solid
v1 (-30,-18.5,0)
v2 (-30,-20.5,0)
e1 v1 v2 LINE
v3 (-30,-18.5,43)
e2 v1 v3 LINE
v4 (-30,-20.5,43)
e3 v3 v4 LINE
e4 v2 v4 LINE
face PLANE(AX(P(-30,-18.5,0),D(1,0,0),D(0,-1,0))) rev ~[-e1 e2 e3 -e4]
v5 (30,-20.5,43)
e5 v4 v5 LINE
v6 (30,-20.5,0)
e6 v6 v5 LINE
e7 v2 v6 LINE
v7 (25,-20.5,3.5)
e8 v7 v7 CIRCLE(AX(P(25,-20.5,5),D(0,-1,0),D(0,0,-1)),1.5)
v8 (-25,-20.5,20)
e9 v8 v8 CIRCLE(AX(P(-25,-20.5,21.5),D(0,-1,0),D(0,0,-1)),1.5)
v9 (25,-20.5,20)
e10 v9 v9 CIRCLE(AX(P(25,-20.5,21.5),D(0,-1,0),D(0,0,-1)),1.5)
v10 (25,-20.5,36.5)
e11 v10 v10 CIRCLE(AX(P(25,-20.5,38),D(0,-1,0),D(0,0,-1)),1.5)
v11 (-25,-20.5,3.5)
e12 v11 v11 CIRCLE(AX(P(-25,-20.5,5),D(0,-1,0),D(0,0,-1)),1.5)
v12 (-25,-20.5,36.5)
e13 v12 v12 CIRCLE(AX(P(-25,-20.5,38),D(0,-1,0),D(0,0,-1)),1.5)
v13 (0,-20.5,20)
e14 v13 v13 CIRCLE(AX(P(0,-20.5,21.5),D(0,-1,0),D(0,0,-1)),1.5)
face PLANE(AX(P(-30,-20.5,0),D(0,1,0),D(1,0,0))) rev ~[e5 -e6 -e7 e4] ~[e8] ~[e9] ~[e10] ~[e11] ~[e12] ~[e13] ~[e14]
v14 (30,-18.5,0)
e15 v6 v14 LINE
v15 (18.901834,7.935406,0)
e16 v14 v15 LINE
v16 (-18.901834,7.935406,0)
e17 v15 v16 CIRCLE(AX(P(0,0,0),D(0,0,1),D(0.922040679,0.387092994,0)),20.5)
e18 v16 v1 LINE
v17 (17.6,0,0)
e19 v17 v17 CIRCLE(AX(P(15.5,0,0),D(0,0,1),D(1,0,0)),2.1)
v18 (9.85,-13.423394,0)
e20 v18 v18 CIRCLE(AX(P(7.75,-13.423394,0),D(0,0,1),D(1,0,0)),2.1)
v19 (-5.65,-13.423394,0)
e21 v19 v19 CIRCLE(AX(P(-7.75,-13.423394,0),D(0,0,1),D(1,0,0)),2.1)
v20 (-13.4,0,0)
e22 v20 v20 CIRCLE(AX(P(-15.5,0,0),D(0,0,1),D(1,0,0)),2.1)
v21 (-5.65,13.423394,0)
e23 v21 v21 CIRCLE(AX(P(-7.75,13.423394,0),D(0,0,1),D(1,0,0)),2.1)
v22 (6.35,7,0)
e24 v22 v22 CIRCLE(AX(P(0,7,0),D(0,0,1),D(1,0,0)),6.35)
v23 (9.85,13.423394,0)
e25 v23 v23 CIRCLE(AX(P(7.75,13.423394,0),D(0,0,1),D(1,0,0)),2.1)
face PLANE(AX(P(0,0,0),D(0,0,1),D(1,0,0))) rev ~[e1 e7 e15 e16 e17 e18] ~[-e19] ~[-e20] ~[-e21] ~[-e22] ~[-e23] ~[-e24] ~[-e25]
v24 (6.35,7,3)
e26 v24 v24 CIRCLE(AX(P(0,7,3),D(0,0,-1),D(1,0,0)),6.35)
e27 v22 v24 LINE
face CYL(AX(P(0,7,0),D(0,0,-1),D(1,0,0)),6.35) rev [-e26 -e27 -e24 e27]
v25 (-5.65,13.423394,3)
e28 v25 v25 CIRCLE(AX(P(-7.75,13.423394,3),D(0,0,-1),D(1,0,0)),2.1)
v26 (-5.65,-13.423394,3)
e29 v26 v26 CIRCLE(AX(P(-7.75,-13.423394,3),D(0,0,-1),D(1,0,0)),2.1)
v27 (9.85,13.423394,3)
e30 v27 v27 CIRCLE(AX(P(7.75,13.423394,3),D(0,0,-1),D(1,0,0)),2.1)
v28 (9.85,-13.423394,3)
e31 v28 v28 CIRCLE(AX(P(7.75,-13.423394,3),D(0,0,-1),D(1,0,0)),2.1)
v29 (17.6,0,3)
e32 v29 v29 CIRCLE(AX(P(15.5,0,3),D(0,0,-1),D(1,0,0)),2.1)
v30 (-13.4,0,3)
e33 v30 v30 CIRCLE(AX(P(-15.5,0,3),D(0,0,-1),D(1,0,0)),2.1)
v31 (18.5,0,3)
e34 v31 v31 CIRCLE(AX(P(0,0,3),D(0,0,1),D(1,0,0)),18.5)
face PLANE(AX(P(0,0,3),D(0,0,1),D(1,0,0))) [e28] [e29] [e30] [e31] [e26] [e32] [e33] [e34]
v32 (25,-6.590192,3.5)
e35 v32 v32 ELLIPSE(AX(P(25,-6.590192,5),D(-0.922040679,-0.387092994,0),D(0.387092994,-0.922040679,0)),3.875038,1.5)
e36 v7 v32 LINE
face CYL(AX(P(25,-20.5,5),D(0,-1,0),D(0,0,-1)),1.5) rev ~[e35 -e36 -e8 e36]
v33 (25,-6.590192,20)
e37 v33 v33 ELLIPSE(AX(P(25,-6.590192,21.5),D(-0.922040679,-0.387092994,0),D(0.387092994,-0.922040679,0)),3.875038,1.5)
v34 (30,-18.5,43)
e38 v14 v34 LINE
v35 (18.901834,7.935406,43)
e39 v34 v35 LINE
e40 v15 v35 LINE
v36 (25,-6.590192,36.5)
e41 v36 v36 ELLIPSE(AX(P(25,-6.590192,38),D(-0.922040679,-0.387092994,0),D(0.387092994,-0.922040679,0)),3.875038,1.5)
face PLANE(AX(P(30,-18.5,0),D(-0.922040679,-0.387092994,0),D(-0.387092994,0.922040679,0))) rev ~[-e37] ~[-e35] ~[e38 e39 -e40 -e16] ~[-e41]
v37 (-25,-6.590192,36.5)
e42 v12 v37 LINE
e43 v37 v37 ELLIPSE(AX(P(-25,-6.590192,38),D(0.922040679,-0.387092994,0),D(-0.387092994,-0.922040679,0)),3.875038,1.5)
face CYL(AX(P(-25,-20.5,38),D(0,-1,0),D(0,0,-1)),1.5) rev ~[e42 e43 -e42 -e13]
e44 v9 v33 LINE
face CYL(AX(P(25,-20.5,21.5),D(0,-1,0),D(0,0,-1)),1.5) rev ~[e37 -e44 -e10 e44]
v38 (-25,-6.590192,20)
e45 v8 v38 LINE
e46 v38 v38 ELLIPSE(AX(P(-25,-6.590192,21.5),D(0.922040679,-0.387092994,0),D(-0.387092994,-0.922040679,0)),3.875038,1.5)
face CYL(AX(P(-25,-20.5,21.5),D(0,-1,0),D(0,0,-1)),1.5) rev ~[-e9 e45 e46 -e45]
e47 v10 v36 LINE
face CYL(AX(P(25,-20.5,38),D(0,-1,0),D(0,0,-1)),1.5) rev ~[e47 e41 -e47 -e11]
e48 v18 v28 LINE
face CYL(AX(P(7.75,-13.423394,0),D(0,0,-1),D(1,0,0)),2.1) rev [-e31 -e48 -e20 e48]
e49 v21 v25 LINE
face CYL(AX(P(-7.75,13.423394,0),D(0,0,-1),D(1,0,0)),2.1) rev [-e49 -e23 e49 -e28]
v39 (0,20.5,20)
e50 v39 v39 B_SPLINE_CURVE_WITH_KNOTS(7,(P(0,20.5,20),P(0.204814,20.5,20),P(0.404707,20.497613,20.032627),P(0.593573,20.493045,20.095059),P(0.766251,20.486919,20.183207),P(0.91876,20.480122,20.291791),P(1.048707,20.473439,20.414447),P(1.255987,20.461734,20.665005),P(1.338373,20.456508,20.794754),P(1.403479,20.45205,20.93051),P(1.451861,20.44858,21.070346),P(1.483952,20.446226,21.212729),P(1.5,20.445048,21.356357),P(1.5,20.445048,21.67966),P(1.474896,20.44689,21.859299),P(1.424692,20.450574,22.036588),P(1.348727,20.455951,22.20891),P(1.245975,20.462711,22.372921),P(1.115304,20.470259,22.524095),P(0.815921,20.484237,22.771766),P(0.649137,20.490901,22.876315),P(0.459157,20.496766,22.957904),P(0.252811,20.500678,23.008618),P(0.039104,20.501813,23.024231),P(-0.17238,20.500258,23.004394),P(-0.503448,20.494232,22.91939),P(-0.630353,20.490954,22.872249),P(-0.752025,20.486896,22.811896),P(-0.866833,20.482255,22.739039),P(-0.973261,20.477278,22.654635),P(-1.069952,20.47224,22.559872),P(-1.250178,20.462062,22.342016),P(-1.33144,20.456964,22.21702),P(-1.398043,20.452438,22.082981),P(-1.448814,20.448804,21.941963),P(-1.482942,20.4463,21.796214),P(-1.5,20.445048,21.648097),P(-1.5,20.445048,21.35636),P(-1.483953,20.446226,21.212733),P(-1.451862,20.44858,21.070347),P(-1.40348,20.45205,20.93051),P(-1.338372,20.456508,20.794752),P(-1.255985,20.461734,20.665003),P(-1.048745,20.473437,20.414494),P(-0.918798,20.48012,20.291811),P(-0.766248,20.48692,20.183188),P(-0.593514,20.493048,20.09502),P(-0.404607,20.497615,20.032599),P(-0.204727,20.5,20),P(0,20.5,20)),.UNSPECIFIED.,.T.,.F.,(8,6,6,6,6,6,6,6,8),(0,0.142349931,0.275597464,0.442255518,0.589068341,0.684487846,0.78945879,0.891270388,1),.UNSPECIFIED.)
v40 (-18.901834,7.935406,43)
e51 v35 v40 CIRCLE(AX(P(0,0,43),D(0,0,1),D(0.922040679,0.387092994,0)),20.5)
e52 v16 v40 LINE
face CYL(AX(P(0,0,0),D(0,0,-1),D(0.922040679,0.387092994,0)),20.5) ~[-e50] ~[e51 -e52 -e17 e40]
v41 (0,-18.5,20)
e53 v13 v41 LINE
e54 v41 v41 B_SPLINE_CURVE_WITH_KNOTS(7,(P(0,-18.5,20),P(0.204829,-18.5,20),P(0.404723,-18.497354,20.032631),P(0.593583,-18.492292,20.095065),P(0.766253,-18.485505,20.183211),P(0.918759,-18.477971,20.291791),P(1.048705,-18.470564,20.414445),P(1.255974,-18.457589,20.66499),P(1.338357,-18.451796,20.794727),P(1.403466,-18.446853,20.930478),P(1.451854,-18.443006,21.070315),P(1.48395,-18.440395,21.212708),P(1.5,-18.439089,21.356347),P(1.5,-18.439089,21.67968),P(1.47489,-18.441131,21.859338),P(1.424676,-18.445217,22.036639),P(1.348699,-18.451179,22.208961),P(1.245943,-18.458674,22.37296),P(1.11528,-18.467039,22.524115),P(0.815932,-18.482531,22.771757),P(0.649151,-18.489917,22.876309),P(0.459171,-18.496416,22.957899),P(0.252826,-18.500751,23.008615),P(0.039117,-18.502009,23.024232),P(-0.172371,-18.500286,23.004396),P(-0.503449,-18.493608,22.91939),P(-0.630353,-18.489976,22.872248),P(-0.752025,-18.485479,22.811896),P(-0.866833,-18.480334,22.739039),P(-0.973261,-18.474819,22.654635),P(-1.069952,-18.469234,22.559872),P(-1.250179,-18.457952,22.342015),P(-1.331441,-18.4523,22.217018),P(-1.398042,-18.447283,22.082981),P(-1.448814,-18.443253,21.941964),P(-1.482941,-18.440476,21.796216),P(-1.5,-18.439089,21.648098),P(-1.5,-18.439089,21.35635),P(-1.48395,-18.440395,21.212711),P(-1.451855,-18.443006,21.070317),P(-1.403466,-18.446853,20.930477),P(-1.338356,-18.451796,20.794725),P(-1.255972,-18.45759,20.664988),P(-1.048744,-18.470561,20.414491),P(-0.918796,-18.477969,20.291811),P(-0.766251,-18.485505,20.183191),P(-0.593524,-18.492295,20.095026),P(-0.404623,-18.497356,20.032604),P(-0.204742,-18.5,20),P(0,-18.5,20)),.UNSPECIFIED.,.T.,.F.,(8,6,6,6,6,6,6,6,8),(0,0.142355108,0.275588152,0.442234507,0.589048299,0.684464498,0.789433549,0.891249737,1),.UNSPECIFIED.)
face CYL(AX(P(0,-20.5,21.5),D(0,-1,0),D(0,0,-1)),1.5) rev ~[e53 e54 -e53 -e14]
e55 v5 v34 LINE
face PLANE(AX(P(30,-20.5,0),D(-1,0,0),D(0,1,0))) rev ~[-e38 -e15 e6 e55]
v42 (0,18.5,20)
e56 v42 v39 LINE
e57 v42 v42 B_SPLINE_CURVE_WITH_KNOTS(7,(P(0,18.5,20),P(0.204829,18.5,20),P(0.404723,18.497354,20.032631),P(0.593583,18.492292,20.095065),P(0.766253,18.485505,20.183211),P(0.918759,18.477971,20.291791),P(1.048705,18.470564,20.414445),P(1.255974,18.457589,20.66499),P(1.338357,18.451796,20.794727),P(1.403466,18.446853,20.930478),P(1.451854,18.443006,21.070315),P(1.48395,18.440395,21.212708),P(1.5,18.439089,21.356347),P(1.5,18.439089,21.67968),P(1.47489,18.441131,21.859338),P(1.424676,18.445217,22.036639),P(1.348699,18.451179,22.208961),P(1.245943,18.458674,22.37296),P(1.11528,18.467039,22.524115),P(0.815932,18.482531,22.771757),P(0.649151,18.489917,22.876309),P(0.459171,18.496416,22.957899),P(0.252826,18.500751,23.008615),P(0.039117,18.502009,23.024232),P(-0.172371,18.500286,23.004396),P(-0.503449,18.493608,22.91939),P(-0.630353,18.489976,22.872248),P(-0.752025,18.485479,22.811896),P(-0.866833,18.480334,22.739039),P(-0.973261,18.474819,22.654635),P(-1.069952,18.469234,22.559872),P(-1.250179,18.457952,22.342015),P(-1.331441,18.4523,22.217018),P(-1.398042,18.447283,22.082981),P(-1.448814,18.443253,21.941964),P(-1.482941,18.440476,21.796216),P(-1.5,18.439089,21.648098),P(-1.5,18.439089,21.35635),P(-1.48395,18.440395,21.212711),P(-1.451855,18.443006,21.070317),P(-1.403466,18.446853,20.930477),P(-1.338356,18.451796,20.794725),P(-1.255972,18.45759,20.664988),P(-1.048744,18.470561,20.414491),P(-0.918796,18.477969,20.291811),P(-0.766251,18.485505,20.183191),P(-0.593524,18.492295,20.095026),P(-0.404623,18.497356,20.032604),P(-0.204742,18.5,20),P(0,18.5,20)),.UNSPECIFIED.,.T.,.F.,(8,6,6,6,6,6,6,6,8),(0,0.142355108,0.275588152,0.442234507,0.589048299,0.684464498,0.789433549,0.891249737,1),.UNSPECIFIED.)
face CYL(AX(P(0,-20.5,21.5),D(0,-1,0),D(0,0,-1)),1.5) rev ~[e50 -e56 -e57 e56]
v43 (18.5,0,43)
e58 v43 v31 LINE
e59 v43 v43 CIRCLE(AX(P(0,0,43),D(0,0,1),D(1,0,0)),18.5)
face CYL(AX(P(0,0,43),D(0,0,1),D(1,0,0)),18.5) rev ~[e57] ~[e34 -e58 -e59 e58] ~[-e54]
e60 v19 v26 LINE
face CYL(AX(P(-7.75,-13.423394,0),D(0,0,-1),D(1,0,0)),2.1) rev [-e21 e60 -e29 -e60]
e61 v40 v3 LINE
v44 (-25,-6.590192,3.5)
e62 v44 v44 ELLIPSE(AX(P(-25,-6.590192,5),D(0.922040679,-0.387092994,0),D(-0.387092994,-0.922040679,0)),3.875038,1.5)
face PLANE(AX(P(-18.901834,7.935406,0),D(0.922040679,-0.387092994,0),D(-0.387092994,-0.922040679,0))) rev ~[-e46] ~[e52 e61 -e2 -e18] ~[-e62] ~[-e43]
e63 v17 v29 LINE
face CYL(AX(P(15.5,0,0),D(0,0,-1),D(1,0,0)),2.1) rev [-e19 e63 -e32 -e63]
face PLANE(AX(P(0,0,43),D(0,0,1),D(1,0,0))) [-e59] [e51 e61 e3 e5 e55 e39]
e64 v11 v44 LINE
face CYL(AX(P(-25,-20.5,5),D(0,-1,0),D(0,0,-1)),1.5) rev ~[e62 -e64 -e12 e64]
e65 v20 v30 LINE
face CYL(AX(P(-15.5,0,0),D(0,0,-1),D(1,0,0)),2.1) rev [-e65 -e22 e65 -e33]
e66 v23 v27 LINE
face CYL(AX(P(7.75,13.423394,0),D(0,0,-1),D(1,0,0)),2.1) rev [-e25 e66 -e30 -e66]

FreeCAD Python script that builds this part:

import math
import FreeCAD as App
import Part
import Sketcher
Q = App.Units.Quantity

doc = App.newDocument("Part")
body = doc.addObject("PartDesign::Body", "Body")

sketch1 = doc.addObject("Sketcher::SketchObject", "Sketch")
body.addObject(sketch1)
sketch1.AttachmentSupport = (doc.XY_Plane, [""])
sketch1.MapMode = "FlatFace"
sketch1.addGeometry(Part.LineSegment(App.Vector(30, -18.5, 0), App.Vector(18.9, 7.9, 0)), False)
sketch1.addGeometry(Part.ArcOfCircle(Part.Circle(App.Vector(0, 0, 0), App.Vector(0, 0, 1), 20.5), math.radians(23), math.radians(157)), False)
sketch1.addGeometry(Part.LineSegment(App.Vector(-18.9, 7.9, 0), App.Vector(-30, -18.5, 0)), False)
sketch1.addGeometry(Part.LineSegment(App.Vector(-30, -18.5, 0), App.Vector(-30, -20.5, 0)), False)
sketch1.addGeometry(Part.LineSegment(App.Vector(-30, -20.5, 0), App.Vector(30, -20.5, 0)), False)
sketch1.addGeometry(Part.LineSegment(App.Vector(30, -20.5, 0), App.Vector(30, -18.5, 0)), False)
sketch1.addGeometry(Part.Circle(App.Vector(7.8, 13.4, 0), App.Vector(0, 0, 1), 2.1), False)
sketch1.addGeometry(Part.Circle(App.Vector(-7.8, -13.4, 0), App.Vector(0, 0, 1), 2.1), False)
sketch1.addGeometry(Part.Circle(App.Vector(7.8, -13.4, 0), App.Vector(0, 0, 1), 2.1), False)
sketch1.addGeometry(Part.Circle(App.Vector(-15.5, 0, 0), App.Vector(0, 0, 1), 2.1), False)
sketch1.addGeometry(Part.Circle(App.Vector(0, 7, 0), App.Vector(0, 0, 1), 6.3), False)
sketch1.addGeometry(Part.Circle(App.Vector(-7.8, 13.4, 0), App.Vector(0, 0, 1), 2.1), False)
sketch1.addGeometry(Part.Circle(App.Vector(15.5, 0, 0), App.Vector(0, 0, 1), 2.1), False)
sketch1.addConstraint(Sketcher.Constraint("Tangent", 0, 2, 1, 1))
sketch1.addConstraint(Sketcher.Constraint("Tangent", 1, 2, 2, 1))
sketch1.addConstraint(Sketcher.Constraint("Coincident", 2, 2, 3, 1))
sketch1.addConstraint(Sketcher.Constraint("Coincident", 3, 2, 4, 1))
sketch1.addConstraint(Sketcher.Constraint("Coincident", 4, 2, 5, 1))
sketch1.addConstraint(Sketcher.Constraint("Coincident", 5, 2, 0, 1))
sketch1.addConstraint(Sketcher.Constraint("Vertical", 3))
sketch1.addConstraint(Sketcher.Constraint("Horizontal", 4))
sketch1.addConstraint(Sketcher.Constraint("Vertical", 5))
sketch1.addConstraint(Sketcher.Constraint("Coincident", 1, 3, -1, 1))
sketch1.addConstraint(Sketcher.Constraint("Equal", 6, 7))
sketch1.addConstraint(Sketcher.Constraint("Equal", 7, 8))
sketch1.addConstraint(Sketcher.Constraint("Equal", 8, 9))
sketch1.addConstraint(Sketcher.Constraint("Equal", 9, 11))
sketch1.addConstraint(Sketcher.Constraint("Equal", 11, 12))
sketch1.addConstraint(Sketcher.Constraint("Symmetric", 6, 3, 7, 3, -1, 1))
sketch1.addConstraint(Sketcher.Constraint("Symmetric", 8, 3, 11, 3, -1, 1))
sketch1.addConstraint(Sketcher.Constraint("Symmetric", 9, 3, 12, 3, -1, 1))
sketch1.addConstraint(Sketcher.Constraint("Symmetric", 7, 3, 8, 3, -2))
sketch1.addConstraint(Sketcher.Constraint("Symmetric", 2, 2, 5, 2, -2))
sketch1.addConstraint(Sketcher.Constraint("PointOnObject", 9, 3, -1))
sketch1.addConstraint(Sketcher.Constraint("PointOnObject", 10, 3, -2))
sketch1.addConstraint(Sketcher.Constraint("Diameter", 6, Q("4.2 mm")))
sketch1.addConstraint(Sketcher.Constraint("Diameter", 10, Q("12.7 mm")))
sketch1.addConstraint(Sketcher.Constraint("Radius", 1, Q("20.5 mm")))
sketch1.addConstraint(Sketcher.Constraint("DistanceX", 4, 1, 4, 2, Q("60 mm")))
sketch1.addConstraint(Sketcher.Constraint("DistanceY", 3, 2, 3, 1, Q("2 mm")))
sketch1.addConstraint(Sketcher.Constraint("DistanceY", -1, 1, 10, 3, Q("7 mm")))
sketch1.addConstraint(Sketcher.Constraint("DistanceX", 9, 3, -1, 1, Q("15.5 mm")))
sketch1.addConstraint(Sketcher.Constraint("DistanceY", 2, 2, -1, 1, Q("18.5 mm")))
sketch1.addConstraint(Sketcher.Constraint("DistanceX", 7, 3, 6, 3, Q("15.5 mm")))
sketch1.addConstraint(Sketcher.Constraint("DistanceY", 8, 3, 0, 2, Q("21.3588 mm")))
pad1 = doc.addObject("PartDesign::Pad", "Pad")
body.addObject(pad1)
pad1.Profile = sketch1
pad1.Length = 43

sketch2 = doc.addObject("Sketcher::SketchObject", "Sketch001")
body.addObject(sketch2)
sketch2.AttachmentSupport = (doc.XY_Plane, [""])
sketch2.MapMode = "FlatFace"
sketch2.AttachmentOffset = App.Placement(App.Vector(0, 0, 43), App.Rotation())
sketch2.addGeometry(Part.Circle(App.Vector(0, 0, 0), App.Vector(0, 0, 1), 18), False)
sketch2.addConstraint(Sketcher.Constraint("Coincident", 0, 3, -1, 1))
sketch2.addConstraint(Sketcher.Constraint("Diameter", 0, Q("37 mm")))
pocket1 = doc.addObject("PartDesign::Pocket", "Pocket")
body.addObject(pocket1)
pocket1.Profile = sketch2
pocket1.Length = 40

sketch3 = doc.addObject("Sketcher::SketchObject", "Sketch002")
body.addObject(sketch3)
sketch3.AttachmentSupport = (doc.XZ_Plane, [""])
sketch3.MapMode = "FlatFace"
sketch3.AttachmentOffset = App.Placement(App.Vector(0, 0, 20.5), App.Rotation())
sketch3.addGeometry(Part.Circle(App.Vector(-25, 38, 0), App.Vector(0, 0, 1), 1.5), False)
sketch3.addGeometry(Part.Circle(App.Vector(-25, 21.5, 0), App.Vector(0, 0, 1), 1.5), False)
sketch3.addGeometry(Part.Circle(App.Vector(-25, 5, 0), App.Vector(0, 0, 1), 1.5), False)
sketch3.addGeometry(Part.Circle(App.Vector(25, 38, 0), App.Vector(0, 0, 1), 1.5), False)
sketch3.addGeometry(Part.Circle(App.Vector(25, 21.5, 0), App.Vector(0, 0, 1), 1.5), False)
sketch3.addGeometry(Part.Circle(App.Vector(25, 5, 0), App.Vector(0, 0, 1), 1.5), False)
sketch3.addConstraint(Sketcher.Constraint("Equal", 0, 1))
sketch3.addConstraint(Sketcher.Constraint("Equal", 1, 2))
sketch3.addConstraint(Sketcher.Constraint("Equal", 2, 3))
sketch3.addConstraint(Sketcher.Constraint("Equal", 3, 4))
sketch3.addConstraint(Sketcher.Constraint("Equal", 4, 5))
sketch3.addConstraint(Sketcher.Constraint("Symmetric", 0, 3, 3, 3, -2))
sketch3.addConstraint(Sketcher.Constraint("Symmetric", 1, 3, 4, 3, -2))
sketch3.addConstraint(Sketcher.Constraint("Symmetric", 2, 3, 5, 3, -2))
sketch3.addConstraint(Sketcher.Constraint("Vertical", 0, 3, 1, 3))
sketch3.addConstraint(Sketcher.Constraint("Vertical", 1, 3, 2, 3))
sketch3.addConstraint(Sketcher.Constraint("Diameter", 0, Q("3 mm")))
sketch3.addConstraint(Sketcher.Constraint("DistanceX", 0, 3, -1, 1, Q("25 mm")))
sketch3.addConstraint(Sketcher.Constraint("DistanceY", -1, 1, 0, 3, Q("38 mm")))
sketch3.addConstraint(Sketcher.Constraint("DistanceY", -1, 1, 2, 3, Q("5 mm")))
sketch3.addConstraint(Sketcher.Constraint("DistanceY", -1, 1, 1, 3, Q("21.5 mm")))
pocket2 = doc.addObject("PartDesign::Pocket", "Pocket001")
body.addObject(pocket2)
pocket2.Profile = sketch3
pocket2.Length = 40

sketch4 = doc.addObject("Sketcher::SketchObject", "Sketch003")
body.addObject(sketch4)
sketch4.AttachmentSupport = (doc.XZ_Plane, [""])
sketch4.MapMode = "FlatFace"
sketch4.AttachmentOffset = App.Placement(App.Vector(0, 0, 20.5), App.Rotation())
sketch4.addGeometry(Part.Circle(App.Vector(0, 21.5, 0), App.Vector(0, 0, 1), 1.5), False)
sketch4.addConstraint(Sketcher.Constraint("PointOnObject", 0, 3, -2))
sketch4.addConstraint(Sketcher.Constraint("Diameter", 0, Q("3 mm")))
sketch4.addConstraint(Sketcher.Constraint("DistanceY", -1, 1, 0, 3, Q("21.5 mm")))
pocket3 = doc.addObject("PartDesign::Pocket", "Pocket002")
body.addObject(pocket3)
pocket3.Profile = sketch4
pocket3.Length = 100

doc.recompute()
